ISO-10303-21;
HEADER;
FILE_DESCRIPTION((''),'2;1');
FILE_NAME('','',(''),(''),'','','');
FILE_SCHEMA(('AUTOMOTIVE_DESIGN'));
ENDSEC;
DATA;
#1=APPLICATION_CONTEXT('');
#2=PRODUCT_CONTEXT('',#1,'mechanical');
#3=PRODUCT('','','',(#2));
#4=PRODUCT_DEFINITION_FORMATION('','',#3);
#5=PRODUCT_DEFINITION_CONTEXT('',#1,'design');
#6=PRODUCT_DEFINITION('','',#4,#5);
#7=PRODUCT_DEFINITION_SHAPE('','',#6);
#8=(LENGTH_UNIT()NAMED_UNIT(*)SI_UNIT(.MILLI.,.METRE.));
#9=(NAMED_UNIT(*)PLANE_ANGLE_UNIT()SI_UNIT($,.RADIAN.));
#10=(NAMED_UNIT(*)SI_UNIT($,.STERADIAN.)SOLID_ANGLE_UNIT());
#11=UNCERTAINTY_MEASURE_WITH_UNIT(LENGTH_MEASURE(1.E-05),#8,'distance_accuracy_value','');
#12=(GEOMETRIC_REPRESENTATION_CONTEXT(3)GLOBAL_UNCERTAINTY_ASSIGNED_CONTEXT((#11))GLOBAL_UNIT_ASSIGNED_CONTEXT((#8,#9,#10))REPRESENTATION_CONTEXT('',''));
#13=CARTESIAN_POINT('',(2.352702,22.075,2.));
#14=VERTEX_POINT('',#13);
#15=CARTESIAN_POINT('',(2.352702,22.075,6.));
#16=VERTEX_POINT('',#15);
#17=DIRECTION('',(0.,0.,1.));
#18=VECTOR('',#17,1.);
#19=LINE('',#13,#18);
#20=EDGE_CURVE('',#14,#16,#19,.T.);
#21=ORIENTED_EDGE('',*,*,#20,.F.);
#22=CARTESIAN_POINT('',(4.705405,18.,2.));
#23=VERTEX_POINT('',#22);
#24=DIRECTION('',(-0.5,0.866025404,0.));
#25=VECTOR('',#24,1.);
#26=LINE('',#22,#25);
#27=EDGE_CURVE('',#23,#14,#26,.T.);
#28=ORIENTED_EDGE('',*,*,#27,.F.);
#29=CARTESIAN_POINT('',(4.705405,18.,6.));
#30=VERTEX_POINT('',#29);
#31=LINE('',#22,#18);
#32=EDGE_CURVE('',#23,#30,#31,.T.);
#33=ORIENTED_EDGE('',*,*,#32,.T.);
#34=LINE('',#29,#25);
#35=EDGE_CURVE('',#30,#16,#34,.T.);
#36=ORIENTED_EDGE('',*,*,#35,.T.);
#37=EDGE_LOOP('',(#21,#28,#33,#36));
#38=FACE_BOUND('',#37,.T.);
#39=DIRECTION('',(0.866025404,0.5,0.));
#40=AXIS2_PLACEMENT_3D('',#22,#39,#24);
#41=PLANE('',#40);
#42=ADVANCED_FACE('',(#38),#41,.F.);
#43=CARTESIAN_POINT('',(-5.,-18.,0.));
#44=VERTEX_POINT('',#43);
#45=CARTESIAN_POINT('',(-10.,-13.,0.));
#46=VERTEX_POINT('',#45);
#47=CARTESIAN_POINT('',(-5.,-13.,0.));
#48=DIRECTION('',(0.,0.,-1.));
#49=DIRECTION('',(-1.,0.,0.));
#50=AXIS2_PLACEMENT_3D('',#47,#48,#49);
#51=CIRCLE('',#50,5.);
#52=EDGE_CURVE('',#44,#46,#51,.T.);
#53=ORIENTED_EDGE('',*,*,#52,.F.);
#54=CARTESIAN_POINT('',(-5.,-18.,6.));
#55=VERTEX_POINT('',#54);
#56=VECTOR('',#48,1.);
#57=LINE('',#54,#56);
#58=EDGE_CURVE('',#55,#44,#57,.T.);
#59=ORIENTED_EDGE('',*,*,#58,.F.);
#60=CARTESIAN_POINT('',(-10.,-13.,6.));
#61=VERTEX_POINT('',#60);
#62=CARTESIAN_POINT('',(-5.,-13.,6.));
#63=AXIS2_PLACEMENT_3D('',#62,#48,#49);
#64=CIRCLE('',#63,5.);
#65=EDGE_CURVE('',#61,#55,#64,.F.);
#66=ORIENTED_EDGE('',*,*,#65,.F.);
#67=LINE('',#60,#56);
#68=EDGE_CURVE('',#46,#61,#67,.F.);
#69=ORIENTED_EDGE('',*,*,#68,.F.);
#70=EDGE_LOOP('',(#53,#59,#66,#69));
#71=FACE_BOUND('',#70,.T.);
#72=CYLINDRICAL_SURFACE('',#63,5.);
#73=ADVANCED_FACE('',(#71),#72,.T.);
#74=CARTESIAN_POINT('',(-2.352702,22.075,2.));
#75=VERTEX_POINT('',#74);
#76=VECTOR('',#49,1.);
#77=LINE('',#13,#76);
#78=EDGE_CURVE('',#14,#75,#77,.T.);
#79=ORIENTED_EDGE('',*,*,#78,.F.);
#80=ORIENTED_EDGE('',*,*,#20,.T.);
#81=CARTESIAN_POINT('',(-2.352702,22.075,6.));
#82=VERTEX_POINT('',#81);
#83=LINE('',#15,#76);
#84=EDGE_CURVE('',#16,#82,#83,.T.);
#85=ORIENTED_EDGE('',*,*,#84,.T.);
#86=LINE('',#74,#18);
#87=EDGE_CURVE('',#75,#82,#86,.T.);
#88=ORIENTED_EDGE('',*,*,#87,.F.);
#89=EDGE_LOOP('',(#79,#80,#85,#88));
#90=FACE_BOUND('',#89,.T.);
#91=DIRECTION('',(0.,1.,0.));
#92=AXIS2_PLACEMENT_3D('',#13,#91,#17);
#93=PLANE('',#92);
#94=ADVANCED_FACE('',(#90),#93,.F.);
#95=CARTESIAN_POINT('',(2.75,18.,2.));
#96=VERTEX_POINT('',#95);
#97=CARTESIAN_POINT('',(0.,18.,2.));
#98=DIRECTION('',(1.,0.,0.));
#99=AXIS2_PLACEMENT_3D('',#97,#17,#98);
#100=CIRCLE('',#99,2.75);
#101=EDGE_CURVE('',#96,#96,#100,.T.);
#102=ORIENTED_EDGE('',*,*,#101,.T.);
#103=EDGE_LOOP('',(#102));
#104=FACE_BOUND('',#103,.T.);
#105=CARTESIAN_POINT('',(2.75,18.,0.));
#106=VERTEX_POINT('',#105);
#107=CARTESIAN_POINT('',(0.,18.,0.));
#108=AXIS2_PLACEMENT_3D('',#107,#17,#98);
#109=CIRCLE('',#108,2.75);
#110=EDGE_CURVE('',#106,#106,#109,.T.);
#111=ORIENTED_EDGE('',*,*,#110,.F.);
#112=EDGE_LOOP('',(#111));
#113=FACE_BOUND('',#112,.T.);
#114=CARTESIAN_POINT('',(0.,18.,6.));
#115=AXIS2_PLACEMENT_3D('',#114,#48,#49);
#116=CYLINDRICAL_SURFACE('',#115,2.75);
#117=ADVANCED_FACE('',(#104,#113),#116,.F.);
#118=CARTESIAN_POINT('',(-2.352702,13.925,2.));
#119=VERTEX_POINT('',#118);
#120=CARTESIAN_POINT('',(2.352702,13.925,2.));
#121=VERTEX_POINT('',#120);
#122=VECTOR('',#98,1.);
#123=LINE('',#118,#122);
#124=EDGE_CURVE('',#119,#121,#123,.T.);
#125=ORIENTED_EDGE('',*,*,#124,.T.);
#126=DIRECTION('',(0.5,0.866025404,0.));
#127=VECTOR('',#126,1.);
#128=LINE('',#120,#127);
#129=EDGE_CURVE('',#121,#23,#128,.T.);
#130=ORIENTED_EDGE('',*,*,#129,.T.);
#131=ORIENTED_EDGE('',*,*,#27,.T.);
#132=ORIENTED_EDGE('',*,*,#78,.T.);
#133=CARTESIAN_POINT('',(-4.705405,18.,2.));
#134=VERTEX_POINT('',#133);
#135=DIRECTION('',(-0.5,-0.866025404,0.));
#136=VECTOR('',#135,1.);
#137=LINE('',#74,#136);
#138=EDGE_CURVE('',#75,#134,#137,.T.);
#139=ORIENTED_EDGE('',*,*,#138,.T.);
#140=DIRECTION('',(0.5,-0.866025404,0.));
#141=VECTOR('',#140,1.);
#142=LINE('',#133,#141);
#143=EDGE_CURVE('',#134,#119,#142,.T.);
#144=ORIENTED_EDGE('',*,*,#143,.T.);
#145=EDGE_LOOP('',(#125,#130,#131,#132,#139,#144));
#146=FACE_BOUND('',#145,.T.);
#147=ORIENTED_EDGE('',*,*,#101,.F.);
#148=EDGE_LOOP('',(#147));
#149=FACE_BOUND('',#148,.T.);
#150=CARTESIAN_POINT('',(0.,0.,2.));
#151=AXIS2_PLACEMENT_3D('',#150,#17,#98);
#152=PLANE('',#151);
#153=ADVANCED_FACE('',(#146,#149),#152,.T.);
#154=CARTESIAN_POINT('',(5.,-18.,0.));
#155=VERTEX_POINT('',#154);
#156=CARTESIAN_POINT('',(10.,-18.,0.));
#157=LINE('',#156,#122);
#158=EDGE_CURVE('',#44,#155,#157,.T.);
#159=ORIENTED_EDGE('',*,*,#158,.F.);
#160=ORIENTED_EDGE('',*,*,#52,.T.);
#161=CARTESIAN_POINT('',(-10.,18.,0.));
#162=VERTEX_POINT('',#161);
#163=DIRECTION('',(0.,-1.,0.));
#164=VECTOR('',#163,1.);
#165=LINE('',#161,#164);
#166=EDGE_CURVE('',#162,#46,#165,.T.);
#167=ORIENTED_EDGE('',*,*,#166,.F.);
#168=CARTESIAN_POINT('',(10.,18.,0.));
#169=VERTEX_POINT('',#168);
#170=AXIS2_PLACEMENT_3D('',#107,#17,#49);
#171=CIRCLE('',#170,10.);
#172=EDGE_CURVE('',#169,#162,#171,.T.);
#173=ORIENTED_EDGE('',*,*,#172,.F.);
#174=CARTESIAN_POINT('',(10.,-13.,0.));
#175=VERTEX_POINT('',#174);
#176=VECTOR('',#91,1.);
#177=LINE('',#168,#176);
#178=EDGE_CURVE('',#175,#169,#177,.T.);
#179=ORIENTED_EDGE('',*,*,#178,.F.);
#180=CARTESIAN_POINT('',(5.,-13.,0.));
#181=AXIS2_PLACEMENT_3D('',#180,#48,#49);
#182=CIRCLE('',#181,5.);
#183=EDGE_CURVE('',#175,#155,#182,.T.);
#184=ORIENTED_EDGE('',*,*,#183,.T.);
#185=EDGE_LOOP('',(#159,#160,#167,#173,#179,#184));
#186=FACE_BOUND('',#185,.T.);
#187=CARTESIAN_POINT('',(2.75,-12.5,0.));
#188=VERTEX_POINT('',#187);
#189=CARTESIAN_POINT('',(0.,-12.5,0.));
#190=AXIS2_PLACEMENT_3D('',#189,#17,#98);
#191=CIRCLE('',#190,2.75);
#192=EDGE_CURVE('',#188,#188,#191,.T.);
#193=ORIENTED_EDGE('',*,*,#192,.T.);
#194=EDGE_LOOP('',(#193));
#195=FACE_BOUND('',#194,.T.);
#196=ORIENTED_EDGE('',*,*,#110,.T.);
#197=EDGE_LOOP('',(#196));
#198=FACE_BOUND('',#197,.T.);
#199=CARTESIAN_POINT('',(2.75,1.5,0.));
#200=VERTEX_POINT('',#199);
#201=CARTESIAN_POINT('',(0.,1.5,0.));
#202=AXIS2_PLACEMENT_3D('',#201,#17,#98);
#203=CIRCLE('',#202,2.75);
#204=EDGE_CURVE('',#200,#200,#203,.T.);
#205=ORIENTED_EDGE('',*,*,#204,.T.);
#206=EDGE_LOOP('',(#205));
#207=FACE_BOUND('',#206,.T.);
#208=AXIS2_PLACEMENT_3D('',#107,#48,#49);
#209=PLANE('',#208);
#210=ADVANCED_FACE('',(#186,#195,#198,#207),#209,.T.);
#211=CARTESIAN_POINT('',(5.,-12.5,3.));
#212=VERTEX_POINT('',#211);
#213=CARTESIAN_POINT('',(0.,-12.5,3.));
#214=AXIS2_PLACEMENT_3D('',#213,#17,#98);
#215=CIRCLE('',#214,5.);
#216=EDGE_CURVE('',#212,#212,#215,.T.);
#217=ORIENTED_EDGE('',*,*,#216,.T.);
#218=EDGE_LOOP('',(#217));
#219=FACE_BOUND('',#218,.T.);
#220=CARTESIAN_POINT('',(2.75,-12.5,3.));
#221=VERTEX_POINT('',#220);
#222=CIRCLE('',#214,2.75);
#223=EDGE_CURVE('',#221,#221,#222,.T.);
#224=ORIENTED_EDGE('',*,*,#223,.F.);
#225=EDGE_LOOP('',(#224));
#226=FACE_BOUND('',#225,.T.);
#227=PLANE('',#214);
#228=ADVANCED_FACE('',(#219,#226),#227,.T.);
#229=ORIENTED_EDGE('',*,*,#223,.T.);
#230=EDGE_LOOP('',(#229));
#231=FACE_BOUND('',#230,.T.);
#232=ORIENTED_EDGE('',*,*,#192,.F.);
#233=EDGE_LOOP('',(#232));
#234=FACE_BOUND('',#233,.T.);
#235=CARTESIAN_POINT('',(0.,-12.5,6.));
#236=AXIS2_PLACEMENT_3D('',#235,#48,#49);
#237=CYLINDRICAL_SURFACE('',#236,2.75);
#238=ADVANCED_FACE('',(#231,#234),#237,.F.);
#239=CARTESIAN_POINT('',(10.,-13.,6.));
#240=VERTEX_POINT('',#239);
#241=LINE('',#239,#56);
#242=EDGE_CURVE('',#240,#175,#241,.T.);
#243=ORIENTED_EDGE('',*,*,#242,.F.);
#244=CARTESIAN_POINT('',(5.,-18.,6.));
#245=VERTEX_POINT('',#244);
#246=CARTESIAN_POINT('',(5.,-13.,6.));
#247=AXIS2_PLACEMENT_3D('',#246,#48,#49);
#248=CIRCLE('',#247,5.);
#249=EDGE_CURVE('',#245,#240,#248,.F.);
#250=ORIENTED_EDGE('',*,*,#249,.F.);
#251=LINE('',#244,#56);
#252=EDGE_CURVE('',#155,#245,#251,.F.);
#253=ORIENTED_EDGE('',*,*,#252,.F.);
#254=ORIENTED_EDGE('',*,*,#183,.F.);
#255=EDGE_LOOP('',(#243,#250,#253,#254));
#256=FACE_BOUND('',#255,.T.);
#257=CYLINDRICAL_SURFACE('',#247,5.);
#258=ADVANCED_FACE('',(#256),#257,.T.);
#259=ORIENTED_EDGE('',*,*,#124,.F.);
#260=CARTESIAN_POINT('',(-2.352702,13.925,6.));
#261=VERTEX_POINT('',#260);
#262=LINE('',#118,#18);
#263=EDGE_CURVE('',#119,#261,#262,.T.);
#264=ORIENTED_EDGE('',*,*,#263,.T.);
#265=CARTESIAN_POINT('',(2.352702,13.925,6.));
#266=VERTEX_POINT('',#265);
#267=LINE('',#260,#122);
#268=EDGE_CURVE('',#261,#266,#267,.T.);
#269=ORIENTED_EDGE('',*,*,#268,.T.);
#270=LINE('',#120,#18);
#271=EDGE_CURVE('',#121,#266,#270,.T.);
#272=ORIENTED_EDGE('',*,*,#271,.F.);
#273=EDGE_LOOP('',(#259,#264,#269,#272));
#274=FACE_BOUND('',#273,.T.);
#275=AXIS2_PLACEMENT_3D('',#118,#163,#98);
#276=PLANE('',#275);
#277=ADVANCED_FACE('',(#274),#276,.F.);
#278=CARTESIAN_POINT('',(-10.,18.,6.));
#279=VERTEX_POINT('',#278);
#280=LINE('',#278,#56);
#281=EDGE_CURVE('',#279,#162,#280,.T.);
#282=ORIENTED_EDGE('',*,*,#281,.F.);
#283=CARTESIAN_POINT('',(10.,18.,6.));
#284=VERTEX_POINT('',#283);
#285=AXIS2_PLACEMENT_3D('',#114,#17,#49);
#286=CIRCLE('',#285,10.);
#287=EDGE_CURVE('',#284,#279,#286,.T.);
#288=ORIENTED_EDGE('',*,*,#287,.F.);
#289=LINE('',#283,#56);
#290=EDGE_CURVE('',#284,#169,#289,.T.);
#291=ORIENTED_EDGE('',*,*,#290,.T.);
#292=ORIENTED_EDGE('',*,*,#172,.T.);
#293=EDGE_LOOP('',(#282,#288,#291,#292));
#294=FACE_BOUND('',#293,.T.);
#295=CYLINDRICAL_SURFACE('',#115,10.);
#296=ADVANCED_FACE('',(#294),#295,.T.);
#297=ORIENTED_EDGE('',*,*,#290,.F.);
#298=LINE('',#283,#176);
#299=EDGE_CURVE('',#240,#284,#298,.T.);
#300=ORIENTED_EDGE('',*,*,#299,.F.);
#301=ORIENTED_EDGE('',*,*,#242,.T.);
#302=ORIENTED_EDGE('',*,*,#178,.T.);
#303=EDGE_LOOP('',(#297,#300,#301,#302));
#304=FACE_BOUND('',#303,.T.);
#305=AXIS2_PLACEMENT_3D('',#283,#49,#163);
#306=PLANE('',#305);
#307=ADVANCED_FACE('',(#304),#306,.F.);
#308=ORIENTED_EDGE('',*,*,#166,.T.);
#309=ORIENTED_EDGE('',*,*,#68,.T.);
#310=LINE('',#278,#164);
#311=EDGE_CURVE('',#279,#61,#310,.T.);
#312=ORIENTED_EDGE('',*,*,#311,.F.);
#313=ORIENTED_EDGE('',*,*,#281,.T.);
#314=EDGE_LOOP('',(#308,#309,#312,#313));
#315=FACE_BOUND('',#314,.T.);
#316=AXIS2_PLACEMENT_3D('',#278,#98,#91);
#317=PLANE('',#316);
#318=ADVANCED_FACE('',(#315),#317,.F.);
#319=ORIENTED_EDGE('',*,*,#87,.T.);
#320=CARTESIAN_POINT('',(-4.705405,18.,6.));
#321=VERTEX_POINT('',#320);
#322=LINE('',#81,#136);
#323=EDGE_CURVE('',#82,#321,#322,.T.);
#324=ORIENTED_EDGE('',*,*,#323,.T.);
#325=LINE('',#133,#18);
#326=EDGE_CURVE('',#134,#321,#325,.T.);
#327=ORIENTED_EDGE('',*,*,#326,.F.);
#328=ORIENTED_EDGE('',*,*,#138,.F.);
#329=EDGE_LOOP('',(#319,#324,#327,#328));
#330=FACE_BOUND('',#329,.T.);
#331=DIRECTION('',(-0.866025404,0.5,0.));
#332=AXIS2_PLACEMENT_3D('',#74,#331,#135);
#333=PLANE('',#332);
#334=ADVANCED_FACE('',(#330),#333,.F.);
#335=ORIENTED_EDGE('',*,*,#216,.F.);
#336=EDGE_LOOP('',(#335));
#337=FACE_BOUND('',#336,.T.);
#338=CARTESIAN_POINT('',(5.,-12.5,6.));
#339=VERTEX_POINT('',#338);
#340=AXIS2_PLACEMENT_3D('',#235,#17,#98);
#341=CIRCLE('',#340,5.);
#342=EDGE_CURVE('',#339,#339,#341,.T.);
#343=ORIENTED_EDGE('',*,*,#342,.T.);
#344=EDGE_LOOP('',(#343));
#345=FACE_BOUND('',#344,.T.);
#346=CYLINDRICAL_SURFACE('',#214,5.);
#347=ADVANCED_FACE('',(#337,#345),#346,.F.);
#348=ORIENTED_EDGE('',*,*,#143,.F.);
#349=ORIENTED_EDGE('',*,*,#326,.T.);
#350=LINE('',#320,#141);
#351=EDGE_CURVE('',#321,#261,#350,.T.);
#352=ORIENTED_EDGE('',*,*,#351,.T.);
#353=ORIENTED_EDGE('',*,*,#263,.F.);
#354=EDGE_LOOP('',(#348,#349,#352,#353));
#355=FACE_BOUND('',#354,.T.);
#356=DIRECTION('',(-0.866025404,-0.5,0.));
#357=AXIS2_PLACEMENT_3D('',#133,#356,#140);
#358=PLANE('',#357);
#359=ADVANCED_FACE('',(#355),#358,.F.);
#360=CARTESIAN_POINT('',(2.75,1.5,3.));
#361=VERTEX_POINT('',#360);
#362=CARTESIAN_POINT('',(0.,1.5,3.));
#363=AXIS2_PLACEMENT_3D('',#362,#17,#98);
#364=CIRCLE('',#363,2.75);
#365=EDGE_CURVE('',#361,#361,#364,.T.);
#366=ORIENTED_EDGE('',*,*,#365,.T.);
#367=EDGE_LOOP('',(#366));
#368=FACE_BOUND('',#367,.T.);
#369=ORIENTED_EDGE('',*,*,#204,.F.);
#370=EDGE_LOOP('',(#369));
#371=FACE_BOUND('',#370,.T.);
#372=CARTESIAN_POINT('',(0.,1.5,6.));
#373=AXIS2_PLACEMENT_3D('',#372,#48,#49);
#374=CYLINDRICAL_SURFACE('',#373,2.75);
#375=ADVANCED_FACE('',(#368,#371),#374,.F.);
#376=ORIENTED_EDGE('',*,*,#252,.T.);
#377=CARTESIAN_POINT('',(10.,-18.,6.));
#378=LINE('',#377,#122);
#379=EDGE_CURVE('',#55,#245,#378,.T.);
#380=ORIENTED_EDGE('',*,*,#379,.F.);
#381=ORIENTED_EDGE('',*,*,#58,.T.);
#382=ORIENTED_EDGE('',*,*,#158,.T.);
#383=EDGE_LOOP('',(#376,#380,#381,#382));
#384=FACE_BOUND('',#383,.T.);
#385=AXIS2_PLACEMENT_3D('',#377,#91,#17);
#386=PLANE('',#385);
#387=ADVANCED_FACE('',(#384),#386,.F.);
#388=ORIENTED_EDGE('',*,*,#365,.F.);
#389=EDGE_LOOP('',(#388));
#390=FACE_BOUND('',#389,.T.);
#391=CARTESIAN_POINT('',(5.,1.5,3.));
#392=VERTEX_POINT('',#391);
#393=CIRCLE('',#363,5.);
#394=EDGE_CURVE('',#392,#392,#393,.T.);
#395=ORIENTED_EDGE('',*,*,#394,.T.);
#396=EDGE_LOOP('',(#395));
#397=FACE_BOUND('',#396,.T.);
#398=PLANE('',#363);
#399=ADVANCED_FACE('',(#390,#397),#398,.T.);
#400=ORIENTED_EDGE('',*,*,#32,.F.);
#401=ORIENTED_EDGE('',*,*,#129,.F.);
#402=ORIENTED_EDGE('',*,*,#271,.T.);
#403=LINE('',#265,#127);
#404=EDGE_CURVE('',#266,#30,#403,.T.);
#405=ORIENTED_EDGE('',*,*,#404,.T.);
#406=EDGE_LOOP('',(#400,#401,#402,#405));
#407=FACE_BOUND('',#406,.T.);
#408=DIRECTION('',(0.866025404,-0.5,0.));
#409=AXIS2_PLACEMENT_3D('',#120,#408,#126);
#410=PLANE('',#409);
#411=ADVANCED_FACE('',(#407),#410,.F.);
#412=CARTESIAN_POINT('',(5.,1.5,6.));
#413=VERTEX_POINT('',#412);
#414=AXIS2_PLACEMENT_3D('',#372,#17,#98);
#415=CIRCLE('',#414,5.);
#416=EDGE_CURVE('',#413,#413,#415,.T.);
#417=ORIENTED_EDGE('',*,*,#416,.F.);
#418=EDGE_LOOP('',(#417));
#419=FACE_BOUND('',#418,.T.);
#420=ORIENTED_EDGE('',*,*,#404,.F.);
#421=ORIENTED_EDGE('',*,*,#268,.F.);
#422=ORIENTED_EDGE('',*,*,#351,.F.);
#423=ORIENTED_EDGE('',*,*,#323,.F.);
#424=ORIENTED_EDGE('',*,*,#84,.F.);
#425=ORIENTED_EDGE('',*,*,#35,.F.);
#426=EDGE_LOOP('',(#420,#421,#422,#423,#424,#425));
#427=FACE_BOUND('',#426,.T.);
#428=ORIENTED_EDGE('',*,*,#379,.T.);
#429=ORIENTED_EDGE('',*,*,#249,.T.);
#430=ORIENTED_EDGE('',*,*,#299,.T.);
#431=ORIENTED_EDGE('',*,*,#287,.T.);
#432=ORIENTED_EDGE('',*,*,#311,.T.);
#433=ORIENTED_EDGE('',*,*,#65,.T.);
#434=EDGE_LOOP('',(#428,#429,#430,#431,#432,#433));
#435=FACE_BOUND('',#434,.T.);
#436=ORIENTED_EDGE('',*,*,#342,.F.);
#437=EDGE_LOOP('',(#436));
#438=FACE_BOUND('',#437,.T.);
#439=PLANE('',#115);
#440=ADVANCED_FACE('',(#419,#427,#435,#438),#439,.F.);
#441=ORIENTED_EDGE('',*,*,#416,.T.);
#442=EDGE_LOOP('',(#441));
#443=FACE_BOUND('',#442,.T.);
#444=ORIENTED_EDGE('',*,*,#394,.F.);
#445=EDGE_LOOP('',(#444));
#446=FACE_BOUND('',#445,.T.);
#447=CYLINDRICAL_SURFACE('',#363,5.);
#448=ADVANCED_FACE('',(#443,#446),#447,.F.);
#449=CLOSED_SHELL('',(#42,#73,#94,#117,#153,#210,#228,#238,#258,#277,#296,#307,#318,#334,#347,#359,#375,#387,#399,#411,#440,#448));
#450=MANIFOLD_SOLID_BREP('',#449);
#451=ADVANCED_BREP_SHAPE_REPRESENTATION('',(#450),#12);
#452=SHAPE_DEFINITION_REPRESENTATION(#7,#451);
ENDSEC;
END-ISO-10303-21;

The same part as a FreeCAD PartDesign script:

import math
import FreeCAD as App
import Part
import Sketcher
from FreeCAD import Vector
Q = App.Units.Quantity


def edges_at(feature, points):
    """Names of the edges that pass closest to the given points."""
    edges = feature.Shape.Edges
    near = lambda p: min(range(len(edges)), key=lambda i: edges[i].distToShape(Part.Vertex(*p))[0])
    return sorted({f"Edge{near(p) + 1}" for p in points})


def add_polygon(sketch, points):
    """Adds a closed chain of lines whose ends are joined by coincident constraints."""
    first, n = sketch.GeometryCount, len(points)
    for a, b in zip(points, points[1:] + points[:1]):
        sketch.addGeometry(Part.LineSegment(App.Vector(*a, 0), App.Vector(*b, 0)), False)
    for i in range(n):
        sketch.addConstraint(Sketcher.Constraint("Coincident", first + i, 2, first + (i + 1) % n, 1))

doc = App.newDocument("Part")
body = doc.addObject("PartDesign::Body", "Body")

# Sketch on XY plane
sketch1 = body.newObject("Sketcher::SketchObject", "Sketch")
sketch1.AttachmentSupport = (doc.getObject("XY_Plane"), [""])
sketch1.MapMode = "FlatFace"
sketch1.addGeometry(Part.LineSegment(Vector(10, -18, 0), Vector(10, 18, 0)), False)
sketch1.addGeometry(Part.ArcOfCircle(Part.Circle(Vector(0, 18, 0), Vector(0, 0, 1), 10), math.radians(0), math.radians(180)), False)
sketch1.addGeometry(Part.LineSegment(Vector(-10, 18, 0), Vector(-10, -18, 0)), False)
sketch1.addGeometry(Part.LineSegment(Vector(-10, -18, 0), Vector(10, -18, 0)), False)
sketch1.addGeometry(Part.Circle(Vector(0, -12.5, 0), Vector(0, 0, 1), 2.8), False)
sketch1.addGeometry(Part.Circle(Vector(0, 1.5, 0), Vector(0, 0, 1), 2.8), False)
sketch1.addGeometry(Part.Circle(Vector(0, 18, 0), Vector(0, 0, 1), 2.8), False)
sketch1.addConstraint(Sketcher.Constraint("Tangent", 0, 2, 1, 1))
sketch1.addConstraint(Sketcher.Constraint("Tangent", 1, 2, 2, 1))
sketch1.addConstraint(Sketcher.Constraint("Coincident", 2, 2, 3, 1))
sketch1.addConstraint(Sketcher.Constraint("Coincident", 3, 2, 0, 1))
sketch1.addConstraint(Sketcher.Constraint("Vertical", 0))
sketch1.addConstraint(Sketcher.Constraint("Vertical", 2))
sketch1.addConstraint(Sketcher.Constraint("Horizontal", 3))
sketch1.addConstraint(Sketcher.Constraint("Coincident", 6, 3, 1, 3))
sketch1.addConstraint(Sketcher.Constraint("Equal", 4, 5))
sketch1.addConstraint(Sketcher.Constraint("Equal", 5, 6))
sketch1.addConstraint(Sketcher.Constraint("Symmetric", 0, 2, 2, 2, -1, 1))
sketch1.addConstraint(Sketcher.Constraint("PointOnObject", 4, 3, -2))
sketch1.addConstraint(Sketcher.Constraint("PointOnObject", 5, 3, -2))
sketch1.addConstraint(Sketcher.Constraint("Radius", 1, Q("10 mm")))
sketch1.addConstraint(Sketcher.Constraint("Diameter", 4, Q("5.5 mm")))
sketch1.addConstraint(Sketcher.Constraint("DistanceY", 0, 1, 0, 2, Q("36 mm")))
sketch1.addConstraint(Sketcher.Constraint("DistanceY", 4, 3, 5, 3, Q("14 mm")))
sketch1.addConstraint(Sketcher.Constraint("DistanceY", 4, 3, -1, 1, Q("12.5 mm")))
pad1 = body.newObject("PartDesign::Pad", "Pad")
pad1.Profile = sketch1
pad1.Length = 6

# Sketch on XY plane
sketch2 = body.newObject("Sketcher::SketchObject", "Sketch001")
sketch2.AttachmentSupport = (doc.getObject("XY_Plane"), [""])
sketch2.MapMode = "FlatFace"
sketch2.AttachmentOffset = App.Placement(Vector(0, 0, 6), App.Rotation())
sketch2.addGeometry(Part.Circle(Vector(0, 2, 0), Vector(0, 0, 1), 5), False)
sketch2.addGeometry(Part.Circle(Vector(0, -12, 0), Vector(0, 0, 1), 5), False)
sketch2.addConstraint(Sketcher.Constraint("Equal", 0, 1))
sketch2.addConstraint(Sketcher.Constraint("PointOnObject", 0, 3, -2))
sketch2.addConstraint(Sketcher.Constraint("PointOnObject", 1, 3, -2))
sketch2.addConstraint(Sketcher.Constraint("Diameter", 0, Q("10 mm")))
sketch2.addConstraint(Sketcher.Constraint("DistanceY", 1, 3, 0, 3, Q("14 mm")))
sketch2.addConstraint(Sketcher.Constraint("DistanceY", -1, 1, 0, 3, Q("1.5 mm")))
pocket1 = body.newObject("PartDesign::Pocket", "Pocket")
pocket1.Profile = sketch2
pocket1.Length = 3
doc.recompute()

fillet = body.newObject("PartDesign::Fillet", "Fillet")
fillet.Base = (pocket1, edges_at(pocket1, [(10, -18, 3), (-10, -18, 3)]))
fillet.Radius = 5

# Sketch on XY plane
sketch3 = body.newObject("Sketcher::SketchObject", "Sketch002")
sketch3.AttachmentSupport = (doc.getObject("XY_Plane"), [""])
sketch3.MapMode = "FlatFace"
sketch3.AttachmentOffset = App.Placement(Vector(0, 0, 6), App.Rotation())
add_polygon(sketch3, [(2.4, 13.9), (4.7, 18), (2.4, 22.1), (-2.4, 22.1), (-4.7, 18), (-2.4, 13.9)])  # lines 0-5
sketch3.addConstraint(Sketcher.Constraint("Horizontal", 2))
sketch3.addConstraint(Sketcher.Constraint("Horizontal", 5))
sketch3.addConstraint(Sketcher.Constraint("Symmetric", 0, 2, 3, 2, -2))
sketch3.addConstraint(Sketcher.Constraint("Parallel", 0, 3))
sketch3.addConstraint(Sketcher.Constraint("Parallel", 1, 4))
sketch3.addConstraint(Sketcher.Constraint("Vertical", 2, 2, 4, 2))
sketch3.addConstraint(Sketcher.Constraint("Vertical", 1, 2, 5, 2))
sketch3.addConstraint(Sketcher.Constraint("Angle", 0, Q("60 deg")))
sketch3.addConstraint(Sketcher.Constraint("DistanceY", -1, 1, 0, 2, Q("18 mm")))
sketch3.addConstraint(Sketcher.Constraint("DistanceY", 4, 2, 2, 2, Q("8.15 mm")))
sketch3.addConstraint(Sketcher.Constraint("DistanceX", 2, 2, 2, 1, Q("4.705405 mm")))
pocket2 = body.newObject("PartDesign::Pocket", "Pocket001")
pocket2.Profile = sketch3
pocket2.Length = 4

doc.recompute()
